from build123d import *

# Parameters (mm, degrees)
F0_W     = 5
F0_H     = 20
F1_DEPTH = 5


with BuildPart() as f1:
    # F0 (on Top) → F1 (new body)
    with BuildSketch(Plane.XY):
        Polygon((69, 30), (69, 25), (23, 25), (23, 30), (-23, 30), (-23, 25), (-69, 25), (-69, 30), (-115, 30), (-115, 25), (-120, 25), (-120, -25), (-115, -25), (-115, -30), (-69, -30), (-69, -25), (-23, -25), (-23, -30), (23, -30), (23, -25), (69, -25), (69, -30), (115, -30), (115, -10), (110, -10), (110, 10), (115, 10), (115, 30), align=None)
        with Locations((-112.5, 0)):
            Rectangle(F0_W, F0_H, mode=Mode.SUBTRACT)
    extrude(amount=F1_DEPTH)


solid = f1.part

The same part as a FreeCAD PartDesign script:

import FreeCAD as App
import Part
import Sketcher
from FreeCAD import Vector


def add_polygon(sketch, points):
    """Adds a closed chain of lines whose ends are joined by coincident constraints."""
    first, n = sketch.GeometryCount, len(points)
    for a, b in zip(points, points[1:] + points[:1]):
        sketch.addGeometry(Part.LineSegment(App.Vector(*a, 0), App.Vector(*b, 0)), False)
    for i in range(n):
        sketch.addConstraint(Sketcher.Constraint("Coincident", first + i, 2, first + (i + 1) % n, 1))

doc = App.newDocument("Part")
body = doc.addObject("PartDesign::Body", "Body")

# Sketch on XY plane
sketch1 = body.newObject("Sketcher::SketchObject", "Sketch")
sketch1.AttachmentSupport = (doc.getObject("XY_Plane"), [""])
sketch1.MapMode = "FlatFace"
add_polygon(sketch1, [(69, 30), (69, 25), (23, 25), (23, 30), (-23, 30), (-23, 25), (-69, 25), (-69, 30), (-115, 30), (-115, 25), (-120, 25), (-120, -25), (-115, -25), (-115, -30), (-69, -30), (-69, -25), (-23, -25), (-23, -30), (23, -30), (23, -25), (69, -25), (69, -30), (115, -30), (115, -10), (110, -10), (110, 10), (115, 10), (115, 30)])  # lines 0-27
add_polygon(sketch1, [(-110, -10), (-115, -10), (-115, 10), (-110, 10)])  # lines 28-31
sketch1.addConstraint(Sketcher.Constraint("Vertical", 0))
sketch1.addConstraint(Sketcher.Constraint("Horizontal", 1))
sketch1.addConstraint(Sketcher.Constraint("Vertical", 2))
sketch1.addConstraint(Sketcher.Constraint("Horizontal", 3))
sketch1.addConstraint(Sketcher.Constraint("Vertical", 4))
sketch1.addConstraint(Sketcher.Constraint("Horizontal", 5))
sketch1.addConstraint(Sketcher.Constraint("Vertical", 6))
sketch1.addConstraint(Sketcher.Constraint("Horizontal", 7))
sketch1.addConstraint(Sketcher.Constraint("Vertical", 8))
sketch1.addConstraint(Sketcher.Constraint("Horizontal", 9))
sketch1.addConstraint(Sketcher.Constraint("Vertical", 10))
sketch1.addConstraint(Sketcher.Constraint("Horizontal", 11))
sketch1.addConstraint(Sketcher.Constraint("Vertical", 12))
sketch1.addConstraint(Sketcher.Constraint("Horizontal", 13))
sketch1.addConstraint(Sketcher.Constraint("Vertical", 14))
sketch1.addConstraint(Sketcher.Constraint("Horizontal", 15))
sketch1.addConstraint(Sketcher.Constraint("Vertical", 16))
sketch1.addConstraint(Sketcher.Constraint("Horizontal", 17))
sketch1.addConstraint(Sketcher.Constraint("Vertical", 18))
sketch1.addConstraint(Sketcher.Constraint("Horizontal", 19))
sketch1.addConstraint(Sketcher.Constraint("Vertical", 20))
sketch1.addConstraint(Sketcher.Constraint("Horizontal", 21))
sketch1.addConstraint(Sketcher.Constraint("Vertical", 22))
sketch1.addConstraint(Sketcher.Constraint("Horizontal", 23))
sketch1.addConstraint(Sketcher.Constraint("Vertical", 24))
sketch1.addConstraint(Sketcher.Constraint("Horizontal", 25))
sketch1.addConstraint(Sketcher.Constraint("Vertical", 26))
sketch1.addConstraint(Sketcher.Constraint("Horizontal", 27))
sketch1.addConstraint(Sketcher.Constraint("Horizontal", 28))
sketch1.addConstraint(Sketcher.Constraint("Vertical", 29))
sketch1.addConstraint(Sketcher.Constraint("Horizontal", 30))
sketch1.addConstraint(Sketcher.Constraint("Vertical", 31))
sketch1.addConstraint(Sketcher.Constraint("Symmetric", 0, 2, 14, 2, -1, 1))
sketch1.addConstraint(Sketcher.Constraint("Symmetric", 2, 2, 16, 2, -1, 1))
sketch1.addConstraint(Sketcher.Constraint("Symmetric", 4, 2, 18, 2, -1, 1))
sketch1.addConstraint(Sketcher.Constraint("Symmetric", 6, 2, 20, 2, -1, 1))
sketch1.addConstraint(Sketcher.Constraint("Symmetric", 12, 2, 26, 2, -1, 1))
sketch1.addConstraint(Sketcher.Constraint("Symmetric", 25, 2, 28, 2, -1, 1))
sketch1.addConstraint(Sketcher.Constraint("Symmetric", 22, 2, 29, 2, -1, 1))
sketch1.addConstraint(Sketcher.Constraint("Symmetric", 1, 2, 4, 2, -2))
sketch1.addConstraint(Sketcher.Constraint("Symmetric", 13, 2, 20, 2, -2))
sketch1.addConstraint(Sketcher.Constraint("Symmetric", 24, 2, 30, 2, -2))
sketch1.addConstraint(Sketcher.Constraint("Symmetric", 8, 2, 11, 2, -1))
sketch1.addConstraint(Sketcher.Constraint("Horizontal", 3, 2, 6, 2))
sketch1.addConstraint(Sketcher.Constraint("Horizontal", 5, 2, 8, 2))
sketch1.addConstraint(Sketcher.Constraint("Equal", 1, 3))
sketch1.addConstraint(Sketcher.Constraint("Equal", 5, 7))
sketch1.addConstraint(Sketcher.Constraint("Equal", 11, 23))
sketch1.addConstraint(Sketcher.Constraint("Equal", 30, 0))
sketch1.addConstraint(Sketcher.Constraint("Equal", 22, 24))
sketch1.addConstraint(Sketcher.Constraint("DistanceX", 1, 2, 1, 1, 46.0))
sketch1.addConstraint(Sketcher.Constraint("DistanceX", 9, 2, 9, 1, 5.0))
sketch1.addConstraint(Sketcher.Constraint("DistanceY", 10, 2, 10, 1, 50.0))
pad1 = body.newObject("PartDesign::Pad", "Pad")
pad1.Profile = sketch1
pad1.Length = 5

doc.recompute()
